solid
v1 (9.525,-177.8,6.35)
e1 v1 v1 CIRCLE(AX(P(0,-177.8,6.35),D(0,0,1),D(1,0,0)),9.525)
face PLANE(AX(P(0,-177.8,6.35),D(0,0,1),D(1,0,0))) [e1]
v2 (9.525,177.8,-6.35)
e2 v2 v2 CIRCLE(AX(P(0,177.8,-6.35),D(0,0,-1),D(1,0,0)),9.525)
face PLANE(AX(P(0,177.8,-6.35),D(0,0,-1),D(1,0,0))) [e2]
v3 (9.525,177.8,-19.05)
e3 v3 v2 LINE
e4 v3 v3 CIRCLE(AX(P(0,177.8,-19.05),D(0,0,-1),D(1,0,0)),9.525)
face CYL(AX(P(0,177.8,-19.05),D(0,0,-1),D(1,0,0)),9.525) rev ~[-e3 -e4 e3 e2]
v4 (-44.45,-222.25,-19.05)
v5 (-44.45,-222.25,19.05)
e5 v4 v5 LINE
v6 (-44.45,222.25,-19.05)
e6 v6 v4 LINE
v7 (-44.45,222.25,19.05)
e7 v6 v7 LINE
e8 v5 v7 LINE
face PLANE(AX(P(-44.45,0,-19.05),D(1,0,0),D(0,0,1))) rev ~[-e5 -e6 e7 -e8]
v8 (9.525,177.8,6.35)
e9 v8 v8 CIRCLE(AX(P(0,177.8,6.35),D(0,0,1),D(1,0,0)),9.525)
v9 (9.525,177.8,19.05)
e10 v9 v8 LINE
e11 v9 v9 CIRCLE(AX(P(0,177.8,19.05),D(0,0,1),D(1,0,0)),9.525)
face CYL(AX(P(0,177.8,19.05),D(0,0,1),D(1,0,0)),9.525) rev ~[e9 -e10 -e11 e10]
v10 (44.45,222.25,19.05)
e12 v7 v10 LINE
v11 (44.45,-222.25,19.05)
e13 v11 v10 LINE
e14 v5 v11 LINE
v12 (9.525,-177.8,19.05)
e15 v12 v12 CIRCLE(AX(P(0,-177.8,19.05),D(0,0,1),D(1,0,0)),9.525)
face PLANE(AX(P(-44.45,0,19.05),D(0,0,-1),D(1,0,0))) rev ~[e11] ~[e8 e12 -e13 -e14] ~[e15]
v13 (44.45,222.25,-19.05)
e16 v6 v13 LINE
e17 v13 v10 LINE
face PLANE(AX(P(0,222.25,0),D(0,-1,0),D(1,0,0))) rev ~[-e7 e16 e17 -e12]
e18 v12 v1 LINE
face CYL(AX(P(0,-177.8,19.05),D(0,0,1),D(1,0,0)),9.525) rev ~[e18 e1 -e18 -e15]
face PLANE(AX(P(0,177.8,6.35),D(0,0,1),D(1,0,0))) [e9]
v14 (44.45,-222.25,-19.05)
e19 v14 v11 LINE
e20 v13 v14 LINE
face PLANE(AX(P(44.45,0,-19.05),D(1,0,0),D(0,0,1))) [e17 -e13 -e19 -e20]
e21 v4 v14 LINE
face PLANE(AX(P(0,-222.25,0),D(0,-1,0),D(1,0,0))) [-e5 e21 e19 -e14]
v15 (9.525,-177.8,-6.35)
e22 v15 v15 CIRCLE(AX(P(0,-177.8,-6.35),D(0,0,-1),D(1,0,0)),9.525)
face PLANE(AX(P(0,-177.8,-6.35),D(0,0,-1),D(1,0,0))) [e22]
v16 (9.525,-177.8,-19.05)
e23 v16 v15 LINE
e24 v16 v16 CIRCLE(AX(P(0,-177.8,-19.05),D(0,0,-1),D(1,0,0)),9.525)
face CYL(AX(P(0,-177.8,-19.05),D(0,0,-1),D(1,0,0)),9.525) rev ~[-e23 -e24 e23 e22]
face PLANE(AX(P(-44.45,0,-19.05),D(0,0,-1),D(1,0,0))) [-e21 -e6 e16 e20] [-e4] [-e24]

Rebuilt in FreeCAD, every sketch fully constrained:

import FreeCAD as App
import Part
import Sketcher

V = App.Vector
Q = App.Units.Quantity

doc = App.newDocument("Part")
params = doc.addObject("Spreadsheet::Sheet", "Params")
for row, (alias, value) in enumerate([
    ("sketch1_width", "3.5 in"),
    ("sketch1_height", "1.5 in"),
    ("pad1_length", "17.5 in"),
    ("sketch2_diameter", "0.75 in"),
    ("pocket1_length", "0.5 in"),
    ("sketch3_diameter", "0.75 in"),
    ("pocket2_length", "0.5 in"),
], start=1):
    params.set(f"A{row}", alias)
    params.set(f"B{row}", "=" + value)
    params.setAlias(f"B{row}", alias)

body = doc.addObject("PartDesign::Body", "Body")

sketch1 = doc.addObject("Sketcher::SketchObject", "Sketch")
body.addObject(sketch1)
sketch1.AttachmentSupport = (doc.XZ_Plane, [""])
sketch1.MapMode = "FlatFace"
sketch1.addGeometry([
    Part.LineSegment(V(-44.45, 19.05, 0), V(-44.45, -19.05, 0)),
    Part.LineSegment(V(-44.45, -19.05, 0), V(44.45, -19.05, 0)),
    Part.LineSegment(V(44.45, -19.05, 0), V(44.45, 19.05, 0)),
    Part.LineSegment(V(44.45, 19.05, 0), V(-44.45, 19.05, 0)),
], False)
sketch1.addConstraint([
    Sketcher.Constraint("Coincident", 0, 2, 1, 1),
    Sketcher.Constraint("Coincident", 1, 2, 2, 1),
    Sketcher.Constraint("Coincident", 2, 2, 3, 1),
    Sketcher.Constraint("Coincident", 3, 2, 0, 1),
    Sketcher.Constraint("Vertical", 0),
    Sketcher.Constraint("Horizontal", 1),
    Sketcher.Constraint("Vertical", 2),
    Sketcher.Constraint("Horizontal", 3),
    Sketcher.Constraint("Symmetric", 0, 2, 2, 2, -1, 1),
    Sketcher.Constraint("DistanceX", 1, 1, 1, 2, Q("3.5 in")),
    Sketcher.Constraint("DistanceY", 0, 2, 0, 1, Q("1.5 in")),
])
sketch1.setExpression("Constraints[9]", "Params.sketch1_width")
sketch1.setExpression("Constraints[10]", "Params.sketch1_height")
pad1 = doc.addObject("PartDesign::Pad", "Pad")
body.addObject(pad1)
pad1.Profile = sketch1
pad1.setExpression("Length", "Params.pad1_length")
pad1.Midplane = True

sketch2 = doc.addObject("Sketcher::SketchObject", "Sketch001")
body.addObject(sketch2)
sketch2.AttachmentSupport = (doc.XY_Plane, [""])
sketch2.MapMode = "FlatFace"
sketch2.AttachmentOffset = App.Placement(V(0, 0, 0.75 * 25.4), App.Rotation())
sketch2.addGeometry([
    Part.Circle(V(0, 177.8, 0), V(0, 0, 1), 9.525),
    Part.Circle(V(0, -177.8, 0), V(0, 0, 1), 9.525),
], False)
sketch2.addConstraint([
    Sketcher.Constraint("Equal", 0, 1),
    Sketcher.Constraint("Symmetric", 0, 3, 1, 3, -1, 1),
    Sketcher.Constraint("PointOnObject", 0, 3, -2),
    Sketcher.Constraint("Diameter", 0, Q("0.75 in")),
    Sketcher.Constraint("DistanceY", -1, 1, 0, 3, Q("7 in")),
])
sketch2.setExpression("Constraints[3]", "Params.sketch2_diameter")
pocket1 = doc.addObject("PartDesign::Pocket", "Pocket")
body.addObject(pocket1)
pocket1.Profile = sketch2
pocket1.setExpression("Length", "Params.pocket1_length")

sketch3 = doc.addObject("Sketcher::SketchObject", "Sketch002")
body.addObject(sketch3)
sketch3.AttachmentSupport = (doc.XY_Plane, [""])
sketch3.MapMode = "FlatFace"
sketch3.AttachmentOffset = App.Placement(V(0, 0, -0.75 * 25.4), App.Rotation())
sketch3.addGeometry([
    Part.Circle(V(0, 177.8, 0), V(0, 0, 1), 9.525),
    Part.Circle(V(0, -177.8, 0), V(0, 0, 1), 9.525),
], False)
sketch3.addConstraint([
    Sketcher.Constraint("Equal", 0, 1),
    Sketcher.Constraint("Symmetric", 0, 3, 1, 3, -1, 1),
    Sketcher.Constraint("PointOnObject", 0, 3, -2),
    Sketcher.Constraint("Diameter", 0, Q("0.75 in")),
    Sketcher.Constraint("DistanceY", -1, 1, 0, 3, Q("7 in")),
])
sketch3.setExpression("Constraints[3]", "Params.sketch3_diameter")
pocket2 = doc.addObject("PartDesign::Pocket", "Pocket001")
body.addObject(pocket2)
pocket2.Profile = sketch3
pocket2.setExpression("Length", "Params.pocket2_length")
pocket2.Reversed = True

doc.recompute()
